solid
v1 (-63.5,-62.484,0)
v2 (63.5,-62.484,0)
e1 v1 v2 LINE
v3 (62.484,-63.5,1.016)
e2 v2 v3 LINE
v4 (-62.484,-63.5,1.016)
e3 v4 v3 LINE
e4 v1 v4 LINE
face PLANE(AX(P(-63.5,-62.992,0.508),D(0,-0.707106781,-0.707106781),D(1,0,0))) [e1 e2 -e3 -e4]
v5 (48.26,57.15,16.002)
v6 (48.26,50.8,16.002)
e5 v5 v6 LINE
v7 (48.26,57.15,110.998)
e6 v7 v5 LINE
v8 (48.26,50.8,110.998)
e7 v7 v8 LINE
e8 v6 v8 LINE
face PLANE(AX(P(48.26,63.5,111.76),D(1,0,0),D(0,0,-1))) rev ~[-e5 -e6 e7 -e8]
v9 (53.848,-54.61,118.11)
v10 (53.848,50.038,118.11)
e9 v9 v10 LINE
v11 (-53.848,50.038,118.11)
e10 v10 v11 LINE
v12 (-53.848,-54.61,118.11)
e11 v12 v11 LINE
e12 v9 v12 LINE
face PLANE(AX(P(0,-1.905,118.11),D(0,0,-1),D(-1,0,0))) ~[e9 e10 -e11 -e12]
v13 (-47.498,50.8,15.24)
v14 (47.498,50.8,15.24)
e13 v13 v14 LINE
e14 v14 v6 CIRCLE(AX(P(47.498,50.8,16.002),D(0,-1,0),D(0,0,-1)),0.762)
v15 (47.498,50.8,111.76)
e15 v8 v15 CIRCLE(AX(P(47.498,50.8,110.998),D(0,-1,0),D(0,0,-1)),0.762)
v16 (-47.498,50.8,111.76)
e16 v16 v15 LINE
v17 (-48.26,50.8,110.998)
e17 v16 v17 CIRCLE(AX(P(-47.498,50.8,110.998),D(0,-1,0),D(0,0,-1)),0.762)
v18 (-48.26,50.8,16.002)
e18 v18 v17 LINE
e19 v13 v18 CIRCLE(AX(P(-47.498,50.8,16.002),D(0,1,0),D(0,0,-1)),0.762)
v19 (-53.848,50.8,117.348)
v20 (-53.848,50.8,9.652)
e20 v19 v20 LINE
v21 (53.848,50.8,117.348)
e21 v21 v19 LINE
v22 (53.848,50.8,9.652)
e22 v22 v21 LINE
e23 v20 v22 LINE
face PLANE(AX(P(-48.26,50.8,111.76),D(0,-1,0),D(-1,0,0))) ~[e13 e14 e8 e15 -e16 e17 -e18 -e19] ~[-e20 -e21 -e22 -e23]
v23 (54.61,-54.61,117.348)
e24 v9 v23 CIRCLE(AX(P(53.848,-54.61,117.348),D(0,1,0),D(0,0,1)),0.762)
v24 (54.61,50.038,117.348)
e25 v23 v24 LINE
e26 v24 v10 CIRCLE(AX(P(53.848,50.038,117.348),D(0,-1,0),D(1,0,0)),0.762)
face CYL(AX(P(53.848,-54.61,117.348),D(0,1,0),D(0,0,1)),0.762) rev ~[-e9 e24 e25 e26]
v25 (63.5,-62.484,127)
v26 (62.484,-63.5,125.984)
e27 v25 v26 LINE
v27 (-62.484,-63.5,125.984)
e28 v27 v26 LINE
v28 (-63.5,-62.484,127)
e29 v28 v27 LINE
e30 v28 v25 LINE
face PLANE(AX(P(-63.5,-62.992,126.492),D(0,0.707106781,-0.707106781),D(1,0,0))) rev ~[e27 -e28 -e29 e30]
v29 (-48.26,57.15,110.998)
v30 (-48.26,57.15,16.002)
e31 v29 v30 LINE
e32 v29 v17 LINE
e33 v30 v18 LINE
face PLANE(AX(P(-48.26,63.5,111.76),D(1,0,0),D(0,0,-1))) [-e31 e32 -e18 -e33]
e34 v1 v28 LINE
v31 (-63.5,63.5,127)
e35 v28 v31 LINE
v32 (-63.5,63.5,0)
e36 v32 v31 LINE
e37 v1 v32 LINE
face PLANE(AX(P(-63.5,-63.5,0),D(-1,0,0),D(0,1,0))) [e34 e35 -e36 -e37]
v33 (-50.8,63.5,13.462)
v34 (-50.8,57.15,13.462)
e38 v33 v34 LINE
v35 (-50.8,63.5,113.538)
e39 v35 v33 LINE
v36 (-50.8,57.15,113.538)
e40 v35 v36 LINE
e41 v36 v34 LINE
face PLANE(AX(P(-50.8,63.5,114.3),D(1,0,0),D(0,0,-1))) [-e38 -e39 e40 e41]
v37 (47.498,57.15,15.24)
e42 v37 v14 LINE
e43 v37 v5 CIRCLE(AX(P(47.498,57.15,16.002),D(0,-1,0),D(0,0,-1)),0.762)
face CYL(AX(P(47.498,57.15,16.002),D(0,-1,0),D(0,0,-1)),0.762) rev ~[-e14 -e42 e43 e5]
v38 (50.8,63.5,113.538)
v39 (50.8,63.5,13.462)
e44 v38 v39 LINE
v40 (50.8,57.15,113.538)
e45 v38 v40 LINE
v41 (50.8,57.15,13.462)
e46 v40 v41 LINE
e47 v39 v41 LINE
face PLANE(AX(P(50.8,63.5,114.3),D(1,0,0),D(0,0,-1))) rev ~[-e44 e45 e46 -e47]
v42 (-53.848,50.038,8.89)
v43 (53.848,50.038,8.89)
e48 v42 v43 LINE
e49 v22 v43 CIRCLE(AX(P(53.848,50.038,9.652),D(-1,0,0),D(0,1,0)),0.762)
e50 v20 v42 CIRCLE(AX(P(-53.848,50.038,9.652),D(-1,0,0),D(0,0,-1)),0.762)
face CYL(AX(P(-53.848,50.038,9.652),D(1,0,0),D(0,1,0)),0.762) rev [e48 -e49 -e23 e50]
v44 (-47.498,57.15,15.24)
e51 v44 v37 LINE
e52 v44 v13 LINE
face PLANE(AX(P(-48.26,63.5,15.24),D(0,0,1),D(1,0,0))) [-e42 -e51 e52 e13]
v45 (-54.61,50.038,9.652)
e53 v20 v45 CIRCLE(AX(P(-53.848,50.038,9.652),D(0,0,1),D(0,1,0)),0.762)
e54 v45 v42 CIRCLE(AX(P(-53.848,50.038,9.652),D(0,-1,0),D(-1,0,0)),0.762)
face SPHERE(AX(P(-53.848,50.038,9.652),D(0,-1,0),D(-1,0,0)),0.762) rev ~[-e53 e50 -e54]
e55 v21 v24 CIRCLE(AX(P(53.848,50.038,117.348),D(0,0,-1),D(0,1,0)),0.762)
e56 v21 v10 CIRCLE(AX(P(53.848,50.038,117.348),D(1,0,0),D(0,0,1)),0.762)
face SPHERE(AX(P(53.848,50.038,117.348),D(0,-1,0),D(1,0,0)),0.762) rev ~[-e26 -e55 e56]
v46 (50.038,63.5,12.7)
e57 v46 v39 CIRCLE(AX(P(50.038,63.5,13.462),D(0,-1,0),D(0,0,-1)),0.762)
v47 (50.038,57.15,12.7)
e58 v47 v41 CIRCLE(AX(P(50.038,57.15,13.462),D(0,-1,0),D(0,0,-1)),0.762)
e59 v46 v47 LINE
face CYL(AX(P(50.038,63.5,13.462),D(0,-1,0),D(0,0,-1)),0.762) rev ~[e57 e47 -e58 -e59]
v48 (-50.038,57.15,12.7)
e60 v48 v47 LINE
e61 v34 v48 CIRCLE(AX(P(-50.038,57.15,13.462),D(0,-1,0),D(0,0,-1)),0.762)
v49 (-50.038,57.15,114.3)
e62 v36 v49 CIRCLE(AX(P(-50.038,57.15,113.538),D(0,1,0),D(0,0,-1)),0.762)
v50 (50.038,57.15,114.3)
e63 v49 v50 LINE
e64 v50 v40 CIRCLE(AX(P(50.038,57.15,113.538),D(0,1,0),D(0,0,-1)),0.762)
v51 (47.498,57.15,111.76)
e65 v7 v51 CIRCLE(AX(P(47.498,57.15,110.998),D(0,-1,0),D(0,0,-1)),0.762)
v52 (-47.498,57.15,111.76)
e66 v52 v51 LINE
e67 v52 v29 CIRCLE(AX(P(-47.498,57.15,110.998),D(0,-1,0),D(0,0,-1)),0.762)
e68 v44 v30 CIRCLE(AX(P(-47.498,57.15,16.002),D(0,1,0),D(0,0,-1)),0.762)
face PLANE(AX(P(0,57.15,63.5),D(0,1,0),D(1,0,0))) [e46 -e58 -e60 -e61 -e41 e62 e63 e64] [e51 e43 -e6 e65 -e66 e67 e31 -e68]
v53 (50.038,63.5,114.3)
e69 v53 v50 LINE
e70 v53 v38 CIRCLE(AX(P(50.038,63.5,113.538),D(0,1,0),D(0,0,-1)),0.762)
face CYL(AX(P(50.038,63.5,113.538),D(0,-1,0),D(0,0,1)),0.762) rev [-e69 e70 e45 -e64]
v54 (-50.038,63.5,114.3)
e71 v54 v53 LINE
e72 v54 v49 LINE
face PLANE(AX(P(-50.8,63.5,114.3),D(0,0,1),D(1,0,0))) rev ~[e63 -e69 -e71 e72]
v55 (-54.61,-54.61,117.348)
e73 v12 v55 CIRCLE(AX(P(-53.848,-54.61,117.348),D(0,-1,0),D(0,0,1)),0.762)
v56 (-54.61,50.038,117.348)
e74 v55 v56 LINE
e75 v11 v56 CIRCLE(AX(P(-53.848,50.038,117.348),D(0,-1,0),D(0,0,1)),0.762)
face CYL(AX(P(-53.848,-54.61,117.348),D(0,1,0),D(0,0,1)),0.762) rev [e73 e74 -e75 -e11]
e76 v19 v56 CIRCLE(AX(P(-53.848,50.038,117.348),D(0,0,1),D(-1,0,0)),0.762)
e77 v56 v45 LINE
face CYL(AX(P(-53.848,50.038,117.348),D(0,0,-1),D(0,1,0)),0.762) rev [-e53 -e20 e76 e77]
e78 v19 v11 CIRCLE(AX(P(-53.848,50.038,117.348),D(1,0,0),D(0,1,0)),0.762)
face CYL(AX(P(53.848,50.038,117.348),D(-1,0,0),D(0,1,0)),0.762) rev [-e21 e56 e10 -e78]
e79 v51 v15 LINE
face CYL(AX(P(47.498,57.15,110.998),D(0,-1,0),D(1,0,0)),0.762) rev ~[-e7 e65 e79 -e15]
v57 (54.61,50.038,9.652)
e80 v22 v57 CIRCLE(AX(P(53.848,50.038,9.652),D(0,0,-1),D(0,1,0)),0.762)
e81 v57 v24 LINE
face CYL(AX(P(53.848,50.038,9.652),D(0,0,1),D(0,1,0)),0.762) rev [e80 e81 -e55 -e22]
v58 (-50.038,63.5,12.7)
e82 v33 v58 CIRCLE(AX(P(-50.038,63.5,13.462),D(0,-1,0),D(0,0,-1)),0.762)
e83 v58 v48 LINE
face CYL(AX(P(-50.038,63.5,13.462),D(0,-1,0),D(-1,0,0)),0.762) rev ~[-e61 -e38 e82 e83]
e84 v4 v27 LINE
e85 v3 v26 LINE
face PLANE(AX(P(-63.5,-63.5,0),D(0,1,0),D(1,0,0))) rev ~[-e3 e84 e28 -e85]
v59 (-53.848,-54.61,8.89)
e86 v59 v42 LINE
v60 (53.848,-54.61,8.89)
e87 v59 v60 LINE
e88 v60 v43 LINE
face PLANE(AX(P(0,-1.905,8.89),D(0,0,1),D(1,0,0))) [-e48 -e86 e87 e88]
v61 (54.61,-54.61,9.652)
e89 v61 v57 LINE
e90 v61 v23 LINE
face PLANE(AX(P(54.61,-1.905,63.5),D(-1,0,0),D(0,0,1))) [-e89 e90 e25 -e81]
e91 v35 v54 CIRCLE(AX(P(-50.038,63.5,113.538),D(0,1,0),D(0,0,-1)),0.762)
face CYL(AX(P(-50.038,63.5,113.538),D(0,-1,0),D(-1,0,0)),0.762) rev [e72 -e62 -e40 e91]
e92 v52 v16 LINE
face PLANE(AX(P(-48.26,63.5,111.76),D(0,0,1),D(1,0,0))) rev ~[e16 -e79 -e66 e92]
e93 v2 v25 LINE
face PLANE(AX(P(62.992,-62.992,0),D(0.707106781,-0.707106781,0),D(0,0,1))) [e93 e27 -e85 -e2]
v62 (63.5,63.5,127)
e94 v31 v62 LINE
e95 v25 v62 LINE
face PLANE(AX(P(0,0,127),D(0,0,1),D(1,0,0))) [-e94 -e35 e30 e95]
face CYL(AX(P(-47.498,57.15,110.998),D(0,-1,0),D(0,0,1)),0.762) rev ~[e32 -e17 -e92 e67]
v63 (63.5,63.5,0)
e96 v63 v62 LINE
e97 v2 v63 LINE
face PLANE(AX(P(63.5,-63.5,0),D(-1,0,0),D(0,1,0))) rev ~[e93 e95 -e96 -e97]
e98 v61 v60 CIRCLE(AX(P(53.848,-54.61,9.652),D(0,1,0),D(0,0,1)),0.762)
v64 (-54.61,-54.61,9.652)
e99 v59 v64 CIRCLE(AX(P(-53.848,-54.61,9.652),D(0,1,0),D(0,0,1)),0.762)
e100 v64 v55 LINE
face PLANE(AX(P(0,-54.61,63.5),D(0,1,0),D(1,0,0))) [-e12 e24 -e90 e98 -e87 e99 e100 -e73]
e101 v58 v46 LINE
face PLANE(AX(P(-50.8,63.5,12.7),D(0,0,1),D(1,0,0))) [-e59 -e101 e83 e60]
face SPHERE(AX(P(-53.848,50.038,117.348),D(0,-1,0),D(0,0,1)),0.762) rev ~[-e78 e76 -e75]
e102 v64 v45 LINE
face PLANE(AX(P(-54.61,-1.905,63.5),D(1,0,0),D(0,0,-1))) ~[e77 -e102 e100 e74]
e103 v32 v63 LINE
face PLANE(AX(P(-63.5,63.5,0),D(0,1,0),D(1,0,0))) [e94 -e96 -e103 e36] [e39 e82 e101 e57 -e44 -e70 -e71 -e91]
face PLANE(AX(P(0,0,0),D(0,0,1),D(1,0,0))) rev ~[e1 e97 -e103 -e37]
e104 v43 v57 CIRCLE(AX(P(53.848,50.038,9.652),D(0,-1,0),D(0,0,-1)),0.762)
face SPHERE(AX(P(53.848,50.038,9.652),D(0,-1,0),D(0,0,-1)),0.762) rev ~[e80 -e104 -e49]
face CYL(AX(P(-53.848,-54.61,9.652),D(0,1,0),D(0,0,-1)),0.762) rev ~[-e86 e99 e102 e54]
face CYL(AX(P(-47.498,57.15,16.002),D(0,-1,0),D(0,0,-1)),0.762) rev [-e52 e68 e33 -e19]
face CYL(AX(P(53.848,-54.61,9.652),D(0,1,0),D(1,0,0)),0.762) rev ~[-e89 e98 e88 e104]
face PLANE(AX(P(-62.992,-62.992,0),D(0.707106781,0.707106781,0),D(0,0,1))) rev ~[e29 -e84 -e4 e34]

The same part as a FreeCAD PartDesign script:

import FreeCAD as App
import Part
import Sketcher
Q = App.Units.Quantity


def edges_at(feature, points):
    """Names of the edges that pass closest to the given points."""
    edges = feature.Shape.Edges
    near = lambda p: min(range(len(edges)), key=lambda i: edges[i].distToShape(Part.Vertex(*p))[0])
    return sorted({f"Edge{near(p) + 1}" for p in points})


def add_polygon(sketch, points):
    """Adds a closed chain of lines whose ends are joined by coincident constraints."""
    first, n = sketch.GeometryCount, len(points)
    for a, b in zip(points, points[1:] + points[:1]):
        sketch.addGeometry(Part.LineSegment(App.Vector(*a, 0), App.Vector(*b, 0)), False)
    for i in range(n):
        sketch.addConstraint(Sketcher.Constraint("Coincident", first + i, 2, first + (i + 1) % n, 1))

doc = App.newDocument("Part")
body = doc.addObject("PartDesign::Body", "Body")

sketch1 = body.newObject("Sketcher::SketchObject", "Sketch")
sketch1.AttachmentSupport = (doc.getObject("XY_Plane"), [""])
sketch1.MapMode = "FlatFace"
add_polygon(sketch1, [(-64, 64), (-64, -64), (64, -64), (64, 64)])
sketch1.addConstraint(Sketcher.Constraint("Vertical", 0))
sketch1.addConstraint(Sketcher.Constraint("Horizontal", 1))
sketch1.addConstraint(Sketcher.Constraint("Vertical", 2))
sketch1.addConstraint(Sketcher.Constraint("Horizontal", 3))
sketch1.addConstraint(Sketcher.Constraint("Symmetric", 0, 2, 2, 2, -1, 1))
sketch1.addConstraint(Sketcher.Constraint("Equal", 3, 0))
sketch1.addConstraint(Sketcher.Constraint("DistanceX", 1, 1, 1, 2, Q("5 in")))
pad1 = body.newObject("PartDesign::Pad", "Pad")
pad1.Profile = sketch1
pad1.Length = Q("5 in")

sketch2 = body.newObject("Sketcher::SketchObject", "Sketch001")
sketch2.AttachmentSupport = (doc.getObject("XZ_Plane"), [""])
sketch2.MapMode = "FlatFace"
sketch2.AttachmentOffset = App.Placement(App.Vector(0, 0, -2.5 * 25.4), App.Rotation())
add_polygon(sketch2, [(-48, 15), (-48, 112), (48, 112), (48, 15)])
sketch2.addConstraint(Sketcher.Constraint("Vertical", 0))
sketch2.addConstraint(Sketcher.Constraint("Horizontal", 1))
sketch2.addConstraint(Sketcher.Constraint("Vertical", 2))
sketch2.addConstraint(Sketcher.Constraint("Horizontal", 3))
sketch2.addConstraint(Sketcher.Constraint("Equal", 3, 0))
sketch2.addConstraint(Sketcher.Constraint("DistanceX", 1, 1, 1, 2, Q("3.8 in")))
sketch2.addConstraint(Sketcher.Constraint("DistanceX", 0, 2, -1, 1, Q("1.9 in")))
sketch2.addConstraint(Sketcher.Constraint("DistanceY", -1, 1, 0, 2, Q("4.4 in")))
pocket1 = body.newObject("PartDesign::Pocket", "Pocket")
pocket1.Profile = sketch2
pocket1.Length = Q("4.65 in")
pocket1.Reversed = True

sketch3 = body.newObject("Sketcher::SketchObject", "Sketch002")
sketch3.AttachmentSupport = (doc.getObject("XZ_Plane"), [""])
sketch3.MapMode = "FlatFace"
sketch3.AttachmentOffset = App.Placement(App.Vector(0, 0, -2.5 * 25.4), App.Rotation())
add_polygon(sketch3, [(-51, 13), (-51, 114), (51, 114), (51, 13)])
add_polygon(sketch3, [(48, 112), (-48, 112), (-48, 15), (48, 15)])
sketch3.addConstraint(Sketcher.Constraint("Vertical", 0))
sketch3.addConstraint(Sketcher.Constraint("Horizontal", 1))
sketch3.addConstraint(Sketcher.Constraint("Vertical", 2))
sketch3.addConstraint(Sketcher.Constraint("Horizontal", 3))
sketch3.addConstraint(Sketcher.Constraint("Horizontal", 4))
sketch3.addConstraint(Sketcher.Constraint("Vertical", 5))
sketch3.addConstraint(Sketcher.Constraint("Horizontal", 6))
sketch3.addConstraint(Sketcher.Constraint("Vertical", 7))
sketch3.addConstraint(Sketcher.Constraint("Equal", 3, 0))
sketch3.addConstraint(Sketcher.Constraint("Equal", 6, 5))
sketch3.addConstraint(Sketcher.Constraint("DistanceX", 1, 1, 1, 2, Q("4 in")))
sketch3.addConstraint(Sketcher.Constraint("DistanceX", 4, 2, 4, 1, Q("3.8 in")))
sketch3.addConstraint(Sketcher.Constraint("DistanceX", 0, 2, -1, 1, Q("2 in")))
sketch3.addConstraint(Sketcher.Constraint("DistanceY", -1, 1, 0, 2, Q("4.5 in")))
sketch3.addConstraint(Sketcher.Constraint("DistanceX", 4, 2, -1, 1, Q("1.9 in")))
sketch3.addConstraint(Sketcher.Constraint("DistanceY", -1, 1, 4, 2, Q("4.4 in")))
pocket2 = body.newObject("PartDesign::Pocket", "Pocket001")
pocket2.Profile = sketch3
pocket2.Length = Q("0.25 in")
pocket2.Reversed = True

sketch4 = body.newObject("Sketcher::SketchObject", "Sketch003")
sketch4.AttachmentSupport = (doc.getObject("XY_Plane"), [""])
sketch4.MapMode = "FlatFace"
sketch4.AttachmentOffset = App.Placement(App.Vector(0, 0, 0.6 * 25.4), App.Rotation())
add_polygon(sketch4, [(-48, 51), (-48, -55), (48, -55), (48, 51)])
sketch4.addConstraint(Sketcher.Constraint("Vertical", 0))
sketch4.addConstraint(Sketcher.Constraint("Horizontal", 1))
sketch4.addConstraint(Sketcher.Constraint("Vertical", 2))
sketch4.addConstraint(Sketcher.Constraint("Horizontal", 3))
sketch4.addConstraint(Sketcher.Constraint("DistanceX", 1, 1, 1, 2, Q("3.8 in")))
sketch4.addConstraint(Sketcher.Constraint("DistanceY", -1, 1, 2, 2, Q("2 in")))
sketch4.addConstraint(Sketcher.Constraint("DistanceY", 0, 2, 0, 1, Q("4.15 in")))
sketch4.addConstraint(Sketcher.Constraint("DistanceX", 0, 2, -1, 1, Q("1.9 in")))
pocket3 = body.newObject("PartDesign::Pocket", "Pocket002")
pocket3.Profile = sketch4
pocket3.Length = Q("0.25 in")
doc.recompute()

datumplane = body.newObject("PartDesign::Plane", "DatumPlane")
datumplane.AttachmentSupport = (doc.getObject("XY_Plane"), [""])
datumplane.MapMode = "FlatFace"
datumplane.AttachmentOffset = App.Placement(App.Vector(0, 0, 2.5 * 25.4), App.Rotation())
mirrored = body.newObject("PartDesign::Mirrored", "Mirrored")
mirrored.Originals = [pocket3]
mirrored.MirrorPlane = (datumplane, [""])
body.Tip = mirrored

sketch5 = body.newObject("Sketcher::SketchObject", "Sketch004")
sketch5.AttachmentSupport = (doc.getObject("YZ_Plane"), [""])
sketch5.MapMode = "FlatFace"
sketch5.AttachmentOffset = App.Placement(App.Vector(0, 0, 1.9 * 25.4), App.Rotation())
add_polygon(sketch5, [(51, 9), (-55, 9), (-55, 118), (51, 118)])
sketch5.addConstraint(Sketcher.Constraint("Horizontal", 0))
sketch5.addConstraint(Sketcher.Constraint("Vertical", 1))
sketch5.addConstraint(Sketcher.Constraint("Horizontal", 2))
sketch5.addConstraint(Sketcher.Constraint("Vertical", 3))
sketch5.addConstraint(Sketcher.Constraint("DistanceY", 1, 1, 1, 2, Q("4.3 in")))
sketch5.addConstraint(Sketcher.Constraint("DistanceX", -1, 1, 2, 2, Q("2 in")))
sketch5.addConstraint(Sketcher.Constraint("DistanceX", 0, 2, 0, 1, Q("4.15 in")))
sketch5.addConstraint(Sketcher.Constraint("DistanceY", -1, 1, 0, 2, Q("0.35 in")))
pocket4 = body.newObject("PartDesign::Pocket", "Pocket003")
pocket4.Profile = sketch5
pocket4.Length = Q("0.25 in")
pocket4.Reversed = True
doc.recompute()

mirrored2 = body.newObject("PartDesign::Mirrored", "Mirrored001")
mirrored2.Originals = [pocket4]
mirrored2.MirrorPlane = (doc.getObject("YZ_Plane"), [""])
body.Tip = mirrored2
doc.recompute()

chamfer = body.newObject("PartDesign::Chamfer", "Chamfer")
chamfer.Base = (mirrored2, edges_at(mirrored2, [
    (0, -63.5, 127),
    (0, -63.5, 0),
    (63.5, -63.5, 63.5),
    (-63.5, -63.5, 63.5),
]))
chamfer.Size = Q("0.04 in")
doc.recompute()

fillet = body.newObject("PartDesign::Fillet", "Fillet")
fillet.Base = (chamfer, edges_at(chamfer, [
    (54.61, -1.905, 8.89),
    (54.61, -1.905, 118.11),
    (-54.61, -1.905, 8.89),
    (-54.61, -1.905, 118.11),
]))
fillet.Radius = Q("0.03 in")
doc.recompute()

fillet2 = body.newObject("PartDesign::Fillet", "Fillet001")
fillet2.Base = (fillet, edges_at(fillet, [
    (-50.8, 60.325, 114.3),
    (-50.8, 60.325, 12.7),
    (50.8, 60.325, 12.7),
    (50.8, 60.325, 114.3),
    (-48.26, 53.975, 15.24),
    (48.26, 53.975, 15.24),
    (48.26, 53.975, 111.76),
    (-48.26, 53.975, 111.76),
]))
fillet2.Radius = Q("0.03 in")
doc.recompute()

fillet3 = body.newObject("PartDesign::Fillet", "Fillet002")
fillet3.Base = (fillet2, edges_at(fillet2, [
    (54.61, 50.8, 63.5),
    (-54.61, 50.8, 63.5),
    (0, 50.8, 8.89),
    (0, 50.8, 118.11),
    (-54.387, 50.8, 9.113),
    (54.387, 50.8, 9.113),
    (-54.387, 50.8, 117.887),
    (54.387, 50.8, 117.887),
]))
fillet3.Radius = Q("0.03 in")

doc.recompute()
